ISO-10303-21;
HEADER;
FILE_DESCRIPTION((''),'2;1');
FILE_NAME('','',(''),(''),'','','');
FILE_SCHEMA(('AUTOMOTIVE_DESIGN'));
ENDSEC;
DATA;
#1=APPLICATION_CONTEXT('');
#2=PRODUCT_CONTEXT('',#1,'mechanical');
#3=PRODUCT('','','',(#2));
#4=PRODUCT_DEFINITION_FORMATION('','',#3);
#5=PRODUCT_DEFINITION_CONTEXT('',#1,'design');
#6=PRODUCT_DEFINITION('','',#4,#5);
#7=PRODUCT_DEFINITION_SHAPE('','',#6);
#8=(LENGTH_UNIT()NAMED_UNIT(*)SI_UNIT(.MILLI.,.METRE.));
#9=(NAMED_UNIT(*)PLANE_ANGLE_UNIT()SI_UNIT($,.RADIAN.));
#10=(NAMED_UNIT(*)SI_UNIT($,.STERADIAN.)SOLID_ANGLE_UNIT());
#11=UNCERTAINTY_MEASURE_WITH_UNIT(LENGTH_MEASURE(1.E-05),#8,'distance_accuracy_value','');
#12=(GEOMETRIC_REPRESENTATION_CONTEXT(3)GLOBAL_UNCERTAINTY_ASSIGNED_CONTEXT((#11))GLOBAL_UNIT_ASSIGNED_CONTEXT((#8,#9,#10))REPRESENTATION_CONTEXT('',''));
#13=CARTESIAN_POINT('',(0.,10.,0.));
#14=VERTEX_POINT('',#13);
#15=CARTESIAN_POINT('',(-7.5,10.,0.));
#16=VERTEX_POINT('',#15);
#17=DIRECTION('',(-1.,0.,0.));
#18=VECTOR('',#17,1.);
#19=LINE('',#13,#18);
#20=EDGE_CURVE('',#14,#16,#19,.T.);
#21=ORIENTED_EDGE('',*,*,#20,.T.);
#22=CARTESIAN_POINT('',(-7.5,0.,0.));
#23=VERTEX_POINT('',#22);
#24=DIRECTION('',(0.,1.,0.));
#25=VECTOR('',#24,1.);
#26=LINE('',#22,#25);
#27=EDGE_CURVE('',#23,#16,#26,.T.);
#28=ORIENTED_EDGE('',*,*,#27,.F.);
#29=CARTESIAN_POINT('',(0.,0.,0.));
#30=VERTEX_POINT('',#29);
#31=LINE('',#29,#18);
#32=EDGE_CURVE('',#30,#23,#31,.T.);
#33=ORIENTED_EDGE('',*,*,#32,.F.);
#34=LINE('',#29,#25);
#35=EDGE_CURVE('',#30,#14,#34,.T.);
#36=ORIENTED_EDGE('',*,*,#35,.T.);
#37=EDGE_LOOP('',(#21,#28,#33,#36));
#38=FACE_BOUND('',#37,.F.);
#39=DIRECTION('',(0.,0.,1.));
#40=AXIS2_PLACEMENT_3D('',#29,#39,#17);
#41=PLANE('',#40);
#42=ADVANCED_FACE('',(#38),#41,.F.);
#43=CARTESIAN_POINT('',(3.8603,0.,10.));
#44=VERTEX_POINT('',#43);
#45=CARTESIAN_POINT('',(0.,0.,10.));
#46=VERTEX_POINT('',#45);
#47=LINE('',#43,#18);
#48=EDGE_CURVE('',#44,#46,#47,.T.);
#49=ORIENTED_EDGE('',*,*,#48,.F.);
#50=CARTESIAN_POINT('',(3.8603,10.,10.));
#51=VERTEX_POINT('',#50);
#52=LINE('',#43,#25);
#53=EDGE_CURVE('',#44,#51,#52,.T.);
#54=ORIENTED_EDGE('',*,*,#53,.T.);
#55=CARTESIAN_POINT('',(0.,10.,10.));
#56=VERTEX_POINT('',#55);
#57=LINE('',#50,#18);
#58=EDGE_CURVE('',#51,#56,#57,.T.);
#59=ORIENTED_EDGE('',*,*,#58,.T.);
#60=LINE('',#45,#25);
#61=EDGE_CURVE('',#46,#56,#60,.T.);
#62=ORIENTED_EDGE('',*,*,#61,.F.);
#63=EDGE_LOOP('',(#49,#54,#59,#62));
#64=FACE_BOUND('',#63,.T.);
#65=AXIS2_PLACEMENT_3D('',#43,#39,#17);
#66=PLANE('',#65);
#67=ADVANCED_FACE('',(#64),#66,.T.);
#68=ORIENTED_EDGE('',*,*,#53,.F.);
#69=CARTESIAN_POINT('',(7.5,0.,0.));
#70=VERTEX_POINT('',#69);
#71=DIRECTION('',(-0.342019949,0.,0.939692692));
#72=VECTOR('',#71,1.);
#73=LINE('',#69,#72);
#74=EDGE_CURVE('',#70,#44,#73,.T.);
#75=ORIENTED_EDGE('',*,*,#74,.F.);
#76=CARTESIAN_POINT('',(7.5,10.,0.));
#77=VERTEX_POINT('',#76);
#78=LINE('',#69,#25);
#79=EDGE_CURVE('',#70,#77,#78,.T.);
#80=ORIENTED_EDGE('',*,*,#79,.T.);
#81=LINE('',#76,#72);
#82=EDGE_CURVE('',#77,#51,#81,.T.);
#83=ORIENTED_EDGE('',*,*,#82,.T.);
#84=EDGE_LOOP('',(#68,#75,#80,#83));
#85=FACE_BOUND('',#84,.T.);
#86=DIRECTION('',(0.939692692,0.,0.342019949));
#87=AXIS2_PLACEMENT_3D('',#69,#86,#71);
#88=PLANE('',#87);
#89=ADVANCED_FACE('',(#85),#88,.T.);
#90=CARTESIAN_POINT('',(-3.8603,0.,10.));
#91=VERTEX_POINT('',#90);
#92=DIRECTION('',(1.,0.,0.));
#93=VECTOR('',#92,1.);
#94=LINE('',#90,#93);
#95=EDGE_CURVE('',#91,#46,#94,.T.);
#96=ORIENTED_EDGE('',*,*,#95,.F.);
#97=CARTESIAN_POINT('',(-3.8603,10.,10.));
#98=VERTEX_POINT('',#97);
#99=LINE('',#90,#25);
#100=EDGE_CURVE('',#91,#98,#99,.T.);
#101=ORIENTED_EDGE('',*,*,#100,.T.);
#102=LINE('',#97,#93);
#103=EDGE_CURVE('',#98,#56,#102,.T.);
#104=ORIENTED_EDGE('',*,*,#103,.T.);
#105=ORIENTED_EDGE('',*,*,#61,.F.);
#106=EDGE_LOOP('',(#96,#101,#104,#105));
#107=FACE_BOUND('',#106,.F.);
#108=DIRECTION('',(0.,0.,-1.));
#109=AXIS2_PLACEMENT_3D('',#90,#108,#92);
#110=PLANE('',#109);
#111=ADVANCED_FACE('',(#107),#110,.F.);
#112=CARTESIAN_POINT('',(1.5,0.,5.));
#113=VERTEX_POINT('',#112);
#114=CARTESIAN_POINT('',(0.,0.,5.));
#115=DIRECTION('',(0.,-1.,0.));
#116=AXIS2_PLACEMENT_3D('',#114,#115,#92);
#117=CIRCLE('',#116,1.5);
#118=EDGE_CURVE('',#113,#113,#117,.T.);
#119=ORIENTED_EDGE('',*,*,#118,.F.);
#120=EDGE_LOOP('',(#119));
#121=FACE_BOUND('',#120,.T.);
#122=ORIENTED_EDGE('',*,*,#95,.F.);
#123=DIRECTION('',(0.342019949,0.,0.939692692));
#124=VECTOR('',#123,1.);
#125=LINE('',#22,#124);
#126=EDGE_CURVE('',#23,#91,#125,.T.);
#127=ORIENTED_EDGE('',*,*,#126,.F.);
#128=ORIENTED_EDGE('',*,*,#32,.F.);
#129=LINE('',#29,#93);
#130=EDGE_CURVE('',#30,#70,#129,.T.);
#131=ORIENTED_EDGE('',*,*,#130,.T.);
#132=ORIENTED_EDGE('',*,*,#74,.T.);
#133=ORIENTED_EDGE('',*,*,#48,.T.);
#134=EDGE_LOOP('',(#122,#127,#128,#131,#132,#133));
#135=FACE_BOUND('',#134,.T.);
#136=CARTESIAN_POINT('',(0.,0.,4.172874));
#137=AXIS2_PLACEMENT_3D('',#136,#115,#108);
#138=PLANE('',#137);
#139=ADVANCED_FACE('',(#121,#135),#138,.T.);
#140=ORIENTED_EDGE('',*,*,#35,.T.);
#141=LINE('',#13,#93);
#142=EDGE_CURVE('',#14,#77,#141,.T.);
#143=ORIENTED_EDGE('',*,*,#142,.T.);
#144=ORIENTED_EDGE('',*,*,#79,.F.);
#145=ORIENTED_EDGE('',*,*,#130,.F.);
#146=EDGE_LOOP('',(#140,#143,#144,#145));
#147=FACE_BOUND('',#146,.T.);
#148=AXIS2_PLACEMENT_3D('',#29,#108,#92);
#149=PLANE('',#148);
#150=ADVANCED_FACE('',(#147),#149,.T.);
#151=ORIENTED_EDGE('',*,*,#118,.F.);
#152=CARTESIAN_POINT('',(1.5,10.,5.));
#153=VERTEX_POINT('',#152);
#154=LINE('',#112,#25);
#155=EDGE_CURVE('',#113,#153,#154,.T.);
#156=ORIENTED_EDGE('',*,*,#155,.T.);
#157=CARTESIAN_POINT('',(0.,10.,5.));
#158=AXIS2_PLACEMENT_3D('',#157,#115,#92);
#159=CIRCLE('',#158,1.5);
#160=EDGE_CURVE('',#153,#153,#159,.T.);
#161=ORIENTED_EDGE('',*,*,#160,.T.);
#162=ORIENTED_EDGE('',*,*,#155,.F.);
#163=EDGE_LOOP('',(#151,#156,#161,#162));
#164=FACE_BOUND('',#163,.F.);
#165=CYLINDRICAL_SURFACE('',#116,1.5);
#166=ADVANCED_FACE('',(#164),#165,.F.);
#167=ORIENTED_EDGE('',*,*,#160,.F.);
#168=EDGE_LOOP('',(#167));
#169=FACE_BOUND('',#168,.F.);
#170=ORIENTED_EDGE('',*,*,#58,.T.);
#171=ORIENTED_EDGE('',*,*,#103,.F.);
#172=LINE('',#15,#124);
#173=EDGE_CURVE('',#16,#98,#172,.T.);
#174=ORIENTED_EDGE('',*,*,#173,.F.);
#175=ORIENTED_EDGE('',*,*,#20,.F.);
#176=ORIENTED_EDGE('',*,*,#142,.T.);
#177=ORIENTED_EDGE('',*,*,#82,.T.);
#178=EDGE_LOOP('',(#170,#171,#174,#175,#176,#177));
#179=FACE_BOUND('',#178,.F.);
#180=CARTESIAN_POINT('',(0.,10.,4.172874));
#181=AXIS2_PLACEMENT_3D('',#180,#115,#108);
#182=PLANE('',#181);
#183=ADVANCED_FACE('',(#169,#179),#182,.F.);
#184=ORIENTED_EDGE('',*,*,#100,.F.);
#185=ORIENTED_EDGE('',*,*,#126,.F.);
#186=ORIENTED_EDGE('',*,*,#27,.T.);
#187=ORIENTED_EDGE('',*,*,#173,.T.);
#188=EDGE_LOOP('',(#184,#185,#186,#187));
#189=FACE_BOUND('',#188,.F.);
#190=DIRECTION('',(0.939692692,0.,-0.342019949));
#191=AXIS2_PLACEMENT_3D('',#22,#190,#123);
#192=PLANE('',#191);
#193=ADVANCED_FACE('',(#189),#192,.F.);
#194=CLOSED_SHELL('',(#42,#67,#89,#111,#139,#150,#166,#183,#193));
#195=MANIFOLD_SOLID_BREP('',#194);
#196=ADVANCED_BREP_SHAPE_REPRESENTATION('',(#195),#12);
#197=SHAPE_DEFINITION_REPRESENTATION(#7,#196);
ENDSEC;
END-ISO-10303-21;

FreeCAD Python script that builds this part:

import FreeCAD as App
import Part
import Sketcher

V = App.Vector
Q = App.Units.Quantity

doc = App.newDocument("Part")
body = doc.addObject("PartDesign::Body", "Body")

# Sketch on XZ plane
sketch1 = doc.addObject("Sketcher::SketchObject", "Sketch")
body.addObject(sketch1)
sketch1.AttachmentSupport = (doc.XZ_Plane, [""])
sketch1.MapMode = "FlatFace"
sketch1.addGeometry(Part.LineSegment(V(-7.5, 0, 0), V(7.5, 0, 0)), False)
sketch1.addGeometry(Part.LineSegment(V(7.5, 0, 0), V(3.8603, 10, 0)), False)
sketch1.addGeometry(Part.LineSegment(V(3.8603, 10, 0), V(-3.8603, 10, 0)), False)
sketch1.addGeometry(Part.LineSegment(V(-3.8603, 10, 0), V(-7.5, 0, 0)), False)
sketch1.addGeometry(Part.Circle(V(0, 5, 0), V(0, 0, 1), 1.5), False)
sketch1.addConstraint(Sketcher.Constraint("Coincident", 0, 2, 1, 1))
sketch1.addConstraint(Sketcher.Constraint("Coincident", 1, 2, 2, 1))
sketch1.addConstraint(Sketcher.Constraint("Coincident", 2, 2, 3, 1))
sketch1.addConstraint(Sketcher.Constraint("Coincident", 3, 2, 0, 1))
sketch1.addConstraint(Sketcher.Constraint("Horizontal", 0))
sketch1.addConstraint(Sketcher.Constraint("Horizontal", 2))
sketch1.addConstraint(Sketcher.Constraint("Symmetric", 0, 2, 3, 2, -1, 1))
sketch1.addConstraint(Sketcher.Constraint("PointOnObject", 4, 3, -2))
sketch1.addConstraint(Sketcher.Constraint("Equal", 1, 3))
sketch1.addConstraint(Sketcher.Constraint("Diameter", 4, 3.0))
sketch1.addConstraint(Sketcher.Constraint("DistanceX", 0, 1, 0, 2, 15.0))
sketch1.addConstraint(Sketcher.Constraint("Angle", 1, Q("110 deg")))
sketch1.addConstraint(Sketcher.Constraint("DistanceY", -1, 1, 4, 3, 5.0))
sketch1.addConstraint(Sketcher.Constraint("DistanceY", -1, 1, 1, 2, 10.0))
pad1 = doc.addObject("PartDesign::Pad", "Pad")
body.addObject(pad1)
pad1.Profile = sketch1
pad1.Length = 10
pad1.Reversed = True

doc.recompute()
